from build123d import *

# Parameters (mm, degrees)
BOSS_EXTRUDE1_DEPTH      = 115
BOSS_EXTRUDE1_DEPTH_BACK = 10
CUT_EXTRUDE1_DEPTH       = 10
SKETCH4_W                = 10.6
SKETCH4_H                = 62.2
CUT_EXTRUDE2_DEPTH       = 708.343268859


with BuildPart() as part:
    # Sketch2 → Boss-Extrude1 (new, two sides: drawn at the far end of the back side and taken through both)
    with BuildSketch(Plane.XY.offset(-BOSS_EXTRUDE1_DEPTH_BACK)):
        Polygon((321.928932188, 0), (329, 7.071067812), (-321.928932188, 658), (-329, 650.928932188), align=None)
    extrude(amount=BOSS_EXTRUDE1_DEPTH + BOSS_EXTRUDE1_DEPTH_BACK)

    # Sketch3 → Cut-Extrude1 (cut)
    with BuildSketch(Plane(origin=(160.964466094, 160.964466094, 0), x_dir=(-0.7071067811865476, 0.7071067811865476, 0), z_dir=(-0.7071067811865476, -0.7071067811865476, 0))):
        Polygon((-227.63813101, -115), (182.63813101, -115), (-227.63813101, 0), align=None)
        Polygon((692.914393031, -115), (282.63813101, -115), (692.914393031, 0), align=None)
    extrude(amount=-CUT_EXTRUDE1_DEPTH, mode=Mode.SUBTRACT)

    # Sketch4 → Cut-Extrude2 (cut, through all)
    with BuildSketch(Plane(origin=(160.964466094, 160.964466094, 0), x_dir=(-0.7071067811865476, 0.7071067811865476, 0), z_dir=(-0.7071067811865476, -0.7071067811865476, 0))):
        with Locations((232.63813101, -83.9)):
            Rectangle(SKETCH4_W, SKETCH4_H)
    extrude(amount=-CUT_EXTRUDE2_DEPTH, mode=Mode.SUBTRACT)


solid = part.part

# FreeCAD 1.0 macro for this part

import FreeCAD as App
import Part
import Sketcher

V = App.Vector
Q = App.Units.Quantity


def add_polygon(sketch, points):
    """Adds a closed chain of lines whose ends are joined by coincident constraints."""
    first, n = sketch.GeometryCount, len(points)
    for a, b in zip(points, points[1:] + points[:1]):
        sketch.addGeometry(Part.LineSegment(App.Vector(*a, 0), App.Vector(*b, 0)), False)
    for i in range(n):
        sketch.addConstraint(Sketcher.Constraint("Coincident", first + i, 2, first + (i + 1) % n, 1))

doc = App.newDocument("Part")
body = doc.addObject("PartDesign::Body", "Body")

sketch1 = doc.addObject("Sketcher::SketchObject", "Sketch")
body.addObject(sketch1)
sketch1.AttachmentSupport = (doc.XY_Plane, [""])
sketch1.MapMode = "FlatFace"
add_polygon(sketch1, [(322, 0), (329, 7), (-322, 658), (-329, 651)])
sketch1.addConstraint(Sketcher.Constraint("PointOnObject", 3, 2, -1))
sketch1.addConstraint(Sketcher.Constraint("Perpendicular", 0, 1))
sketch1.addConstraint(Sketcher.Constraint("Perpendicular", 1, 2))
sketch1.addConstraint(Sketcher.Constraint("Perpendicular", 2, 3))
sketch1.addConstraint(Sketcher.Constraint("Angle", 0, Q("45 deg")))
sketch1.addConstraint(Sketcher.Constraint("Distance", 0, Q("10 mm")))
sketch1.addConstraint(Sketcher.Constraint("DistanceX", -1, 1, 0, 2, Q("329 mm")))
sketch1.addConstraint(Sketcher.Constraint("DistanceY", -1, 1, 1, 2, Q("658 mm")))
pad1 = doc.addObject("PartDesign::Pad", "Pad")
body.addObject(pad1)
pad1.Profile = sketch1
pad1.Type = "TwoLengths"
pad1.Length = 115
pad1.Length2 = 10

sketch2 = doc.addObject("Sketcher::SketchObject", "Sketch001")
body.addObject(sketch2)
sketch2.Placement = App.Placement(V(160.964466, 160.964466, 0), App.Rotation(V(-0.707106781, 0.707106781, 0), V(0, 0, -0.999999999), V(-0.707106781, -0.707106781, 0), "ZXY"))
add_polygon(sketch2, [(-228, -115), (183, -115), (-228, 0)])
add_polygon(sketch2, [(283, -115), (693, -115), (693, 0)])
sketch2.addConstraint(Sketcher.Constraint("Horizontal", 0))
sketch2.addConstraint(Sketcher.Constraint("Vertical", 2))
sketch2.addConstraint(Sketcher.Constraint("Horizontal", 3))
sketch2.addConstraint(Sketcher.Constraint("Vertical", 4))
sketch2.addConstraint(Sketcher.Constraint("PointOnObject", 1, 2, -1))
sketch2.addConstraint(Sketcher.Constraint("PointOnObject", 4, 2, -1))
sketch2.addConstraint(Sketcher.Constraint("Horizontal", 2, 2, 3, 2))
sketch2.addConstraint(Sketcher.Constraint("Equal", 0, 3))
sketch2.addConstraint(Sketcher.Constraint("DistanceY", 2, 2, 2, 1, Q("115 mm")))
sketch2.addConstraint(Sketcher.Constraint("DistanceX", 0, 2, 5, 2, Q("100 mm")))
sketch2.addConstraint(Sketcher.Constraint("DistanceX", 0, 1, 0, 2, Q("410.276262 mm")))
sketch2.addConstraint(Sketcher.Constraint("DistanceX", -1, 1, 0, 2, Q("182.638131 mm")))
pocket1 = doc.addObject("PartDesign::Pocket", "Pocket")
body.addObject(pocket1)
pocket1.Profile = sketch2
pocket1.Length = 10

sketch3 = doc.addObject("Sketcher::SketchObject", "Sketch002")
body.addObject(sketch3)
sketch3.Placement = App.Placement(V(160.964466, 160.964466, 0), App.Rotation(V(-0.707106781, 0.707106781, 0), V(0, 0, -0.999999999), V(-0.707106781, -0.707106781, 0), "ZXY"))
add_polygon(sketch3, [(227, -53), (227, -115), (238, -115), (238, -53)])
sketch3.addConstraint(Sketcher.Constraint("Vertical", 0))
sketch3.addConstraint(Sketcher.Constraint("Horizontal", 1))
sketch3.addConstraint(Sketcher.Constraint("Vertical", 2))
sketch3.addConstraint(Sketcher.Constraint("Horizontal", 3))
sketch3.addConstraint(Sketcher.Constraint("DistanceX", 1, 1, 1, 2, Q("10.6 mm")))
sketch3.addConstraint(Sketcher.Constraint("DistanceY", 0, 2, 0, 1, Q("62.2 mm")))
sketch3.addConstraint(Sketcher.Constraint("DistanceY", 0, 2, -1, 1, Q("115 mm")))
sketch3.addConstraint(Sketcher.Constraint("DistanceX", -1, 1, 0, 2, Q("227.338131 mm")))
pocket2 = doc.addObject("PartDesign::Pocket", "Pocket001")
body.addObject(pocket2)
pocket2.Profile = sketch3
pocket2.Type = "ThroughAll"

doc.recompute()
